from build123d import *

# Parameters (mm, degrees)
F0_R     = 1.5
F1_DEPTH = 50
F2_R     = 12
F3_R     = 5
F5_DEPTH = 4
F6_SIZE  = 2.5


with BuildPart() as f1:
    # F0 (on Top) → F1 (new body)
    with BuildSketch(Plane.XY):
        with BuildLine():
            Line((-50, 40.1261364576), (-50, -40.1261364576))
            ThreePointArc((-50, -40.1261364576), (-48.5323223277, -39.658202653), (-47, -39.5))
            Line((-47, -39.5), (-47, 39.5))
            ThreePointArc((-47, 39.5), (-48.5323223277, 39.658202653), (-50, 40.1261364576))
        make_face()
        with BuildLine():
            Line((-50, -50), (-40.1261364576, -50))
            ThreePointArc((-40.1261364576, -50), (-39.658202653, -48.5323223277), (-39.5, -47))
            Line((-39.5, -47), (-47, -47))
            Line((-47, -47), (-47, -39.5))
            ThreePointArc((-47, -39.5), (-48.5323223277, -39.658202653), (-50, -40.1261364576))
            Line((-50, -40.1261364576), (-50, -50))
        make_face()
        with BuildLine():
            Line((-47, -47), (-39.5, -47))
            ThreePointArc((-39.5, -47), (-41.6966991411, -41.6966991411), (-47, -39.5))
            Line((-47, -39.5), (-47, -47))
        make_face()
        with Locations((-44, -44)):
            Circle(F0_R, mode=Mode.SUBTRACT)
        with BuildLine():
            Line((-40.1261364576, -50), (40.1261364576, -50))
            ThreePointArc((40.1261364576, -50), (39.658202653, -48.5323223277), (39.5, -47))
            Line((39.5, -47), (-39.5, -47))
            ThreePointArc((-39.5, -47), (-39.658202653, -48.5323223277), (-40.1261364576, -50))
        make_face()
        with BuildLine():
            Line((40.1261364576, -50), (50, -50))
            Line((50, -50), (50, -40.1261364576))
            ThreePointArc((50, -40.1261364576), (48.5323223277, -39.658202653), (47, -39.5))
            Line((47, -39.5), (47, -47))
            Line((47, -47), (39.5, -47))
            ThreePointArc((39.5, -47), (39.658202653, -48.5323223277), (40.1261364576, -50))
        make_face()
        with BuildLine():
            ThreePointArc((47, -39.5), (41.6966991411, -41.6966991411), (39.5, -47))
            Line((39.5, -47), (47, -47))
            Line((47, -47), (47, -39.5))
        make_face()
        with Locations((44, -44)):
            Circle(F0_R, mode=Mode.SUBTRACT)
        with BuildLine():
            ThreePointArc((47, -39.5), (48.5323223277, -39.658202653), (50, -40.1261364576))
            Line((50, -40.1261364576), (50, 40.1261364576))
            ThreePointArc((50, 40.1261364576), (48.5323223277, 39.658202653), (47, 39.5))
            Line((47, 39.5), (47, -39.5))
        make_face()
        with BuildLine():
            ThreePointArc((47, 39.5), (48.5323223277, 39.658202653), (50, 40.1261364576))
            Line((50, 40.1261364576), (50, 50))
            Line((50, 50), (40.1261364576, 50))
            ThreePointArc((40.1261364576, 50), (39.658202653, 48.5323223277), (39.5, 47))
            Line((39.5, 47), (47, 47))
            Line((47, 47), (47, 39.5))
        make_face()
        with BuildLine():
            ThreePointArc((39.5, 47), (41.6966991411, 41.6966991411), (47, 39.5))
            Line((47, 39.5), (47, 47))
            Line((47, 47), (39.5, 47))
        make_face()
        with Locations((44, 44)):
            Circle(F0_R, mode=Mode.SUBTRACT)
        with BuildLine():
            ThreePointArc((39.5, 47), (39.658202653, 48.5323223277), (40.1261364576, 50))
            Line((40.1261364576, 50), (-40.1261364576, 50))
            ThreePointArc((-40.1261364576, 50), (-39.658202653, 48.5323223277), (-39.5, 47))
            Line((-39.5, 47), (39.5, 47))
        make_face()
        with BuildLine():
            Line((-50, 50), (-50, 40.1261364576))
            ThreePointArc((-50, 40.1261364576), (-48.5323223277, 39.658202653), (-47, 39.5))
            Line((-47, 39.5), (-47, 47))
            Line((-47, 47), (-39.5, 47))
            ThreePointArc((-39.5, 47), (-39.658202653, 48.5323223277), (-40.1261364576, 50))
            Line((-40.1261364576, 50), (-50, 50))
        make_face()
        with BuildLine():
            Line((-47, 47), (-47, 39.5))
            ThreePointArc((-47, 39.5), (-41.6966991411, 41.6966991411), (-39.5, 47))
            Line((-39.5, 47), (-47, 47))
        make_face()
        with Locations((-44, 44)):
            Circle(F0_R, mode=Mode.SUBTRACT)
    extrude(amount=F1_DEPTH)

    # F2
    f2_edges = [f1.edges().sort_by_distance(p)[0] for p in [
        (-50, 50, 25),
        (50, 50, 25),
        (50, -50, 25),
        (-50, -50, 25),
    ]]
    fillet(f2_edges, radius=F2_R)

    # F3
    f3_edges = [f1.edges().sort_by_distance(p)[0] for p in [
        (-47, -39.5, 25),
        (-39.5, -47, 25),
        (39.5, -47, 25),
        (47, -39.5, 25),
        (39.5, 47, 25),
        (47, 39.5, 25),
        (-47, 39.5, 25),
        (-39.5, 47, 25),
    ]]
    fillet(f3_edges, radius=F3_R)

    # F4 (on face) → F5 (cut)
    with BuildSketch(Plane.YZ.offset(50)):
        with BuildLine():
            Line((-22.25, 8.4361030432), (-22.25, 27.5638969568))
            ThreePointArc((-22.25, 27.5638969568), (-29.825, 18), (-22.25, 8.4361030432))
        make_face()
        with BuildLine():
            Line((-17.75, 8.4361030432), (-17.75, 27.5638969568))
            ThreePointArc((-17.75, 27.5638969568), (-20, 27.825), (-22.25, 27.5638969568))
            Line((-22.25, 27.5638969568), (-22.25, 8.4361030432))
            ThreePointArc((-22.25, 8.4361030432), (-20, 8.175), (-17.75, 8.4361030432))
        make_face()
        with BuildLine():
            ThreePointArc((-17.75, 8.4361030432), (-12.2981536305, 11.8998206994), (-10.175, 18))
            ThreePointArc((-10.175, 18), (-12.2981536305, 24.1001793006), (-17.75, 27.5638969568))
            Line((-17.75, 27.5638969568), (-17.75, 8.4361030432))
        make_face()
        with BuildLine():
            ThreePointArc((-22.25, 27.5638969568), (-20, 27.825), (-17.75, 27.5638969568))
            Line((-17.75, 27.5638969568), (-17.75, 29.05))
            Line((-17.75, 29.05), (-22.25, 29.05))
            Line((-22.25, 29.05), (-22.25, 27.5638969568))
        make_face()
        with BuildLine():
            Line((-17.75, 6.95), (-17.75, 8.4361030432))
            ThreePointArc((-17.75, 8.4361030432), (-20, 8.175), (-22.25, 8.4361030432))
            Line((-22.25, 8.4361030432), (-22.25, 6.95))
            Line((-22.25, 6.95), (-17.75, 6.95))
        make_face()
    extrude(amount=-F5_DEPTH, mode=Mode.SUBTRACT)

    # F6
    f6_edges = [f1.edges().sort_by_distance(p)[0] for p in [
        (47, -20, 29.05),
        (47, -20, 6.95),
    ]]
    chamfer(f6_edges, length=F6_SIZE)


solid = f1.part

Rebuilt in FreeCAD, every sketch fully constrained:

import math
import FreeCAD as App
import Part
import Sketcher
from FreeCAD import Vector


def edges_at(feature, points):
    """Names of the edges that pass closest to the given points."""
    edges = feature.Shape.Edges
    near = lambda p: min(range(len(edges)), key=lambda i: edges[i].distToShape(Part.Vertex(*p))[0])
    return sorted({f"Edge{near(p) + 1}" for p in points})

doc = App.newDocument("Part")
body = doc.addObject("PartDesign::Body", "Body")

sketch1 = body.newObject("Sketcher::SketchObject", "Sketch")
sketch1.AttachmentSupport = (doc.getObject("XY_Plane"), [""])
sketch1.MapMode = "FlatFace"
sketch1.addGeometry([
    Part.LineSegment(Vector(-50, -50, 0), Vector(50, -50, 0)),
    Part.LineSegment(Vector(50, -50, 0), Vector(50, 50, 0)),
    Part.LineSegment(Vector(50, 50, 0), Vector(-50, 50, 0)),
    Part.LineSegment(Vector(-50, 50, 0), Vector(-50, -50, 0)),
    Part.Circle(Vector(-44, -44, 0), Vector(0, 0, 1), 1.5),
    Part.Circle(Vector(44, -44, 0), Vector(0, 0, 1), 1.5),
    Part.Circle(Vector(-44, 44, 0), Vector(0, 0, 1), 1.5),
    Part.ArcOfCircle(Part.Circle(Vector(47, 47, 0), Vector(0, 0, 1), 7.5), math.radians(180), math.radians(270)),
    Part.LineSegment(Vector(47, 39.5, 0), Vector(47, -39.5, 0)),
    Part.ArcOfCircle(Part.Circle(Vector(47, -47, 0), Vector(0, 0, 1), 7.5), math.radians(90), math.radians(180)),
    Part.LineSegment(Vector(39.5, -47, 0), Vector(-39.5, -47, 0)),
    Part.ArcOfCircle(Part.Circle(Vector(-47, -47, 0), Vector(0, 0, 1), 7.5), math.radians(0), math.radians(90)),
    Part.LineSegment(Vector(-47, -39.5, 0), Vector(-47, 39.5, 0)),
    Part.ArcOfCircle(Part.Circle(Vector(-47, 47, 0), Vector(0, 0, 1), 7.5), math.radians(-90), math.radians(0)),
    Part.LineSegment(Vector(-39.5, 47, 0), Vector(39.5, 47, 0)),
    Part.Circle(Vector(44, 44, 0), Vector(0, 0, 1), 1.5),
], False)
sketch1.addConstraint([
    Sketcher.Constraint("Coincident", 0, 2, 1, 1),
    Sketcher.Constraint("Coincident", 1, 2, 2, 1),
    Sketcher.Constraint("Coincident", 2, 2, 3, 1),
    Sketcher.Constraint("Coincident", 3, 2, 0, 1),
    Sketcher.Constraint("Coincident", 7, 2, 8, 1),
    Sketcher.Constraint("Coincident", 8, 2, 9, 1),
    Sketcher.Constraint("Coincident", 9, 2, 10, 1),
    Sketcher.Constraint("Coincident", 10, 2, 11, 1),
    Sketcher.Constraint("Coincident", 11, 2, 12, 1),
    Sketcher.Constraint("Coincident", 12, 2, 13, 1),
    Sketcher.Constraint("Coincident", 13, 2, 14, 1),
    Sketcher.Constraint("Coincident", 14, 2, 7, 1),
    Sketcher.Constraint("Horizontal", 0),
    Sketcher.Constraint("Vertical", 1),
    Sketcher.Constraint("Horizontal", 2),
    Sketcher.Constraint("Vertical", 3),
    Sketcher.Constraint("Vertical", 8),
    Sketcher.Constraint("Horizontal", 10),
    Sketcher.Constraint("Vertical", 12),
    Sketcher.Constraint("Horizontal", 14),
    Sketcher.Constraint("Equal", 4, 5),
    Sketcher.Constraint("Equal", 5, 6),
    Sketcher.Constraint("Equal", 7, 9),
    Sketcher.Constraint("Equal", 9, 11),
    Sketcher.Constraint("Equal", 11, 13),
    Sketcher.Constraint("Equal", 6, 15),
    Sketcher.Constraint("Symmetric", 5, 3, 6, 3, -1, 1),
    Sketcher.Constraint("Symmetric", 7, 3, 11, 3, -1, 1),
    Sketcher.Constraint("Symmetric", 9, 3, 13, 3, -1, 1),
    Sketcher.Constraint("Symmetric", 4, 3, 15, 3, -1, 1),
    Sketcher.Constraint("Symmetric", 0, 2, 2, 2, -1, 1),
    Sketcher.Constraint("Symmetric", 4, 3, 5, 3, -2),
    Sketcher.Constraint("Symmetric", 9, 3, 11, 3, -2),
    Sketcher.Constraint("Horizontal", 11, 3, 9, 2),
    Sketcher.Constraint("Horizontal", 7, 3, 13, 2),
    Sketcher.Constraint("Vertical", 9, 3, 7, 2),
    Sketcher.Constraint("Vertical", 13, 3, 11, 2),
    Sketcher.Constraint("Equal", 2, 1),
    Sketcher.Constraint("Equal", 14, 8),
    Sketcher.Constraint("Diameter", 4, 3.0),
    Sketcher.Constraint("Radius", 7, 7.5),
    Sketcher.Constraint("DistanceX", 0, 1, 0, 2, 100.0),
    Sketcher.Constraint("DistanceX", 10, 2, 10, 1, 79.0),
    Sketcher.Constraint("DistanceX", 4, 3, -1, 1, 44.0),
    Sketcher.Constraint("DistanceY", 4, 3, -1, 1, 44.0),
])
pad1 = body.newObject("PartDesign::Pad", "Pad")
pad1.Profile = sketch1
pad1.Length = 50
doc.recompute()

fillet = body.newObject("PartDesign::Fillet", "Fillet")
fillet.Base = (pad1, edges_at(pad1, [
    (-50, 50, 25),
    (50, 50, 25),
    (50, -50, 25),
    (-50, -50, 25),
]))
fillet.Radius = 12
doc.recompute()

fillet2 = body.newObject("PartDesign::Fillet", "Fillet001")
fillet2.Base = (fillet, edges_at(fillet, [
    (-47, -39.5, 25),
    (-39.5, -47, 25),
    (39.5, -47, 25),
    (47, -39.5, 25),
    (39.5, 47, 25),
    (47, 39.5, 25),
    (-47, 39.5, 25),
    (-39.5, 47, 25),
]))
fillet2.Radius = 5

sketch2 = body.newObject("Sketcher::SketchObject", "Sketch001")
sketch2.AttachmentSupport = (doc.getObject("YZ_Plane"), [""])
sketch2.MapMode = "FlatFace"
sketch2.AttachmentOffset = App.Placement(Vector(0, 0, 50), App.Rotation())
sketch2.addGeometry([
    Part.ArcOfCircle(Part.Circle(Vector(-20, 18, 0), Vector(0, 0, 1), 9.8), math.radians(103), math.radians(257)),
    Part.LineSegment(Vector(-22.2, 8.4, 0), Vector(-22.2, 7, 0)),
    Part.LineSegment(Vector(-22.2, 7, 0), Vector(-17.8, 7, 0)),
    Part.LineSegment(Vector(-17.8, 7, 0), Vector(-17.8, 8.4, 0)),
    Part.ArcOfCircle(Part.Circle(Vector(-20, 18, 0), Vector(0, 0, 1), 9.8), math.radians(-77), math.radians(0)),
    Part.ArcOfCircle(Part.Circle(Vector(-20, 18, 0), Vector(0, 0, 1), 9.8), math.radians(0), math.radians(77)),
    Part.LineSegment(Vector(-17.8, 27.6, 0), Vector(-17.8, 29.1, 0)),
    Part.LineSegment(Vector(-17.8, 29.1, 0), Vector(-22.2, 29.1, 0)),
    Part.LineSegment(Vector(-22.2, 29.1, 0), Vector(-22.2, 27.6, 0)),
], False)
sketch2.addConstraint([
    Sketcher.Constraint("Coincident", 0, 2, 1, 1),
    Sketcher.Constraint("Coincident", 1, 2, 2, 1),
    Sketcher.Constraint("Coincident", 2, 2, 3, 1),
    Sketcher.Constraint("Coincident", 3, 2, 4, 1),
    Sketcher.Constraint("Tangent", 4, 2, 5, 1),
    Sketcher.Constraint("Coincident", 5, 2, 6, 1),
    Sketcher.Constraint("Coincident", 6, 2, 7, 1),
    Sketcher.Constraint("Coincident", 7, 2, 8, 1),
    Sketcher.Constraint("Coincident", 8, 2, 0, 1),
    Sketcher.Constraint("Vertical", 1),
    Sketcher.Constraint("Horizontal", 2),
    Sketcher.Constraint("Vertical", 3),
    Sketcher.Constraint("Vertical", 6),
    Sketcher.Constraint("Horizontal", 7),
    Sketcher.Constraint("Vertical", 8),
    Sketcher.Constraint("Coincident", 4, 3, 0, 3),
    Sketcher.Constraint("Equal", 0, 4),
    Sketcher.Constraint("Equal", 4, 5),
    Sketcher.Constraint("Horizontal", 0, 2, 3, 2),
    Sketcher.Constraint("Horizontal", 5, 3, 4, 2),
    Sketcher.Constraint("Horizontal", 5, 2, 8, 2),
    Sketcher.Constraint("Vertical", 3, 2, 5, 2),
    Sketcher.Constraint("Equal", 3, 6),
    Sketcher.Constraint("DistanceX", 2, 1, 2, 2, 4.5),
    Sketcher.Constraint("DistanceX", 0, 3, -1, 1, 20.0),
    Sketcher.Constraint("DistanceY", -1, 1, 0, 3, 18.0),
    Sketcher.Constraint("Radius", 0, 9.825),
    Sketcher.Constraint("DistanceY", -1, 1, 1, 2, 6.95),
])
pocket1 = body.newObject("PartDesign::Pocket", "Pocket")
pocket1.Profile = sketch2
pocket1.Length = 4
doc.recompute()

chamfer = body.newObject("PartDesign::Chamfer", "Chamfer")
chamfer.Base = (pocket1, edges_at(pocket1, [(47, -20, 29.05), (47, -20, 6.95)]))
chamfer.Size = 2.5

doc.recompute()
